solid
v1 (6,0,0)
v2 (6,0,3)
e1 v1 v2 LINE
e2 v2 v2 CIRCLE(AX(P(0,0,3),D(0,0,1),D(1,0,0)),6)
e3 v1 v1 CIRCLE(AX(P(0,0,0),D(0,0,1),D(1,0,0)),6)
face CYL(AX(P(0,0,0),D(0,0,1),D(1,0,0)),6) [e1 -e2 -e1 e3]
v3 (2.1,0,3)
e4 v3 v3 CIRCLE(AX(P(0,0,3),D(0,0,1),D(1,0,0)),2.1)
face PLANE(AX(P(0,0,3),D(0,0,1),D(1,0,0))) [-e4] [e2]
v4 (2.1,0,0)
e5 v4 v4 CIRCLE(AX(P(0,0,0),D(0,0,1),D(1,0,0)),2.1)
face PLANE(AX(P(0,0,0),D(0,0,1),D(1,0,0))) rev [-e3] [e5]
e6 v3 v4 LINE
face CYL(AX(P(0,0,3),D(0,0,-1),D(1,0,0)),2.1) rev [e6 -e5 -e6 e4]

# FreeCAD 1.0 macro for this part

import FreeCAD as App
import Part
import Sketcher
Q = App.Units.Quantity

doc = App.newDocument("Part")
body = doc.addObject("PartDesign::Body", "Body")

# Sketch on XZ plane
sketch1 = body.newObject("Sketcher::SketchObject", "Sketch")
sketch1.AttachmentSupport = (doc.getObject("XZ_Plane"), [""])
sketch1.MapMode = "FlatFace"
sketch1.addGeometry([
    Part.LineSegment(App.Vector(2.1, 0, 0), App.Vector(2.1, 3, 0)),
    Part.LineSegment(App.Vector(2.1, 3, 0), App.Vector(6, 3, 0)),
    Part.LineSegment(App.Vector(6, 3, 0), App.Vector(6, 0, 0)),
    Part.LineSegment(App.Vector(6, 0, 0), App.Vector(2.1, 0, 0)),
], False)
sketch1.addConstraint([
    Sketcher.Constraint("Coincident", 0, 2, 1, 1),
    Sketcher.Constraint("Coincident", 1, 2, 2, 1),
    Sketcher.Constraint("Coincident", 2, 2, 3, 1),
    Sketcher.Constraint("Coincident", 3, 2, 0, 1),
    Sketcher.Constraint("Vertical", 0),
    Sketcher.Constraint("Horizontal", 1),
    Sketcher.Constraint("Vertical", 2),
    Sketcher.Constraint("Horizontal", 3),
    Sketcher.Constraint("PointOnObject", 2, 2, -1),
    Sketcher.Constraint("DistanceY", 0, 1, 0, 2, Q("3 mm")),
    Sketcher.Constraint("DistanceX", 1, 1, 1, 2, Q("3.9 mm")),
    Sketcher.Constraint("DistanceX", -1, 1, 1, 2, Q("6 mm")),
])
revolution = body.newObject("PartDesign::Revolution", "Revolution")
revolution.Profile = sketch1
revolution.ReferenceAxis = (sketch1, ["V_Axis"])
revolution.Angle = 360

doc.recompute()
